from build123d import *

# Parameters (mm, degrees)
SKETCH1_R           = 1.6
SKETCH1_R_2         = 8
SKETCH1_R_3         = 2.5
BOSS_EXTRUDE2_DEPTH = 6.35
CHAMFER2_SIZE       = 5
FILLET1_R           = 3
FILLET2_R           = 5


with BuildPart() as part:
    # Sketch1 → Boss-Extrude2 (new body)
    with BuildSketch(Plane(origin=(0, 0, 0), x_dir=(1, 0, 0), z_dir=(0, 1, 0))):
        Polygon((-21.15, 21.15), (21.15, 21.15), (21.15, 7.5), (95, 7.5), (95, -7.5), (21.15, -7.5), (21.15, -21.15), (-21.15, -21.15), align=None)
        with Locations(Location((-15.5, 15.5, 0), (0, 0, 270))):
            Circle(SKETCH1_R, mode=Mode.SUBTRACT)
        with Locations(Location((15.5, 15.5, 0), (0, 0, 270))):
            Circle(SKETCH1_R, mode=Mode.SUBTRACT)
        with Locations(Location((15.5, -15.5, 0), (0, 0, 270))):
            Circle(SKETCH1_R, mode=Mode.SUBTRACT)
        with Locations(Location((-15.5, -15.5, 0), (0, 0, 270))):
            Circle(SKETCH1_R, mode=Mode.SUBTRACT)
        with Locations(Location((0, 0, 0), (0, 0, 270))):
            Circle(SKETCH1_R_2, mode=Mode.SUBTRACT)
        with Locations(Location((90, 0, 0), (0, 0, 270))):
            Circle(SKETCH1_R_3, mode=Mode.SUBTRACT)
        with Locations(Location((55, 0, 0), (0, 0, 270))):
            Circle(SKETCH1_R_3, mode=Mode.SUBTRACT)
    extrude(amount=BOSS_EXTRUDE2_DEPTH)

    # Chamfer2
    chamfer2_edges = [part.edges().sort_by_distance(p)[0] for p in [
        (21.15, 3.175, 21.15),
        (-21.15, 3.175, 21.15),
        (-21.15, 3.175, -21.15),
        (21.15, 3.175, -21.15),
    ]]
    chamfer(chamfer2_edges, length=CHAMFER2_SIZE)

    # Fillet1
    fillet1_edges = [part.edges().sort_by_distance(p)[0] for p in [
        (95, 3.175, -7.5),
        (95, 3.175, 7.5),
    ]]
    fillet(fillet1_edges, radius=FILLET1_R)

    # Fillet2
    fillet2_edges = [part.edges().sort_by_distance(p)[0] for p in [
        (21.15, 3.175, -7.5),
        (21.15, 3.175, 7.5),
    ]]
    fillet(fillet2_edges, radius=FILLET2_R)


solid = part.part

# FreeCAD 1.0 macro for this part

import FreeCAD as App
import Part
import Sketcher

V = App.Vector


def edges_at(feature, points):
    """Names of the edges that pass closest to the given points."""
    edges = feature.Shape.Edges
    near = lambda p: min(range(len(edges)), key=lambda i: edges[i].distToShape(Part.Vertex(*p))[0])
    return sorted({f"Edge{near(p) + 1}" for p in points})


def add_polygon(sketch, points):
    """Adds a closed chain of lines whose ends are joined by coincident constraints."""
    first, n = sketch.GeometryCount, len(points)
    for a, b in zip(points, points[1:] + points[:1]):
        sketch.addGeometry(Part.LineSegment(App.Vector(*a, 0), App.Vector(*b, 0)), False)
    for i in range(n):
        sketch.addConstraint(Sketcher.Constraint("Coincident", first + i, 2, first + (i + 1) % n, 1))

doc = App.newDocument("Part")
params = doc.addObject("Spreadsheet::Sheet", "Params")
for row, (alias, value) in enumerate([
    ("sketch1_diameter", "5 mm"),
    ("sketch1_diameter2", "16 mm"),
    ("sketch1_diameter3", "3.2 mm"),
    ("sketch1_height", "15 mm"),
    ("sketch1_width", "42.3 mm"),
    ("pad1_length", "6.35 mm"),
    ("chamfer_size", "5 mm"),
    ("fillet_radius", "3 mm"),
    ("fillet2_radius", "5 mm"),
], start=1):
    params.set(f"A{row}", alias)
    params.set(f"B{row}", "=" + value)
    params.setAlias(f"B{row}", alias)

body = doc.addObject("PartDesign::Body", "Body")

# Sketch on XZ plane
sketch1 = body.newObject("Sketcher::SketchObject", "Sketch")
sketch1.AttachmentSupport = (doc.getObject("XZ_Plane"), [""])
sketch1.MapMode = "FlatFace"
add_polygon(sketch1, [(21.1, -21.1), (-21.1, -21.1), (-21.1, 21.1), (21.1, 21.1), (21.1, 7.5), (95, 7.5), (95, -7.5), (21.1, -7.5)])  # lines 0-7
sketch1.addGeometry(Part.Circle(V(15.5, 15.5, 0), V(0, 0, 1), 1.6), False)  # 8
sketch1.addGeometry(Part.Circle(V(-15.5, 15.5, 0), V(0, 0, 1), 1.6), False)  # 9
sketch1.addGeometry(Part.Circle(V(90, 0, 0), V(0, 0, 1), 2.5), False)  # 10
sketch1.addGeometry(Part.Circle(V(55, 0, 0), V(0, 0, 1), 2.5), False)  # 11
sketch1.addGeometry(Part.Circle(V(0, 0, 0), V(0, 0, 1), 8), False)  # 12
sketch1.addGeometry(Part.Circle(V(15.5, -15.5, 0), V(0, 0, 1), 1.6), False)  # 13
sketch1.addGeometry(Part.Circle(V(-15.5, -15.5, 0), V(0, 0, 1), 1.6), False)  # 14
sketch1.addConstraint(Sketcher.Constraint("Horizontal", 0))
sketch1.addConstraint(Sketcher.Constraint("Vertical", 1))
sketch1.addConstraint(Sketcher.Constraint("Horizontal", 2))
sketch1.addConstraint(Sketcher.Constraint("Vertical", 3))
sketch1.addConstraint(Sketcher.Constraint("Horizontal", 4))
sketch1.addConstraint(Sketcher.Constraint("Vertical", 5))
sketch1.addConstraint(Sketcher.Constraint("Horizontal", 6))
sketch1.addConstraint(Sketcher.Constraint("Vertical", 7))
sketch1.addConstraint(Sketcher.Constraint("Coincident", 12, 3, -1, 1))
sketch1.addConstraint(Sketcher.Constraint("Equal", 8, 9))
sketch1.addConstraint(Sketcher.Constraint("Equal", 10, 11))
sketch1.addConstraint(Sketcher.Constraint("Equal", 9, 13))
sketch1.addConstraint(Sketcher.Constraint("Equal", 13, 14))
sketch1.addConstraint(Sketcher.Constraint("Symmetric", 9, 3, 13, 3, -1, 1))
sketch1.addConstraint(Sketcher.Constraint("Symmetric", 8, 3, 14, 3, -1, 1))
sketch1.addConstraint(Sketcher.Constraint("Symmetric", 0, 2, 2, 2, -1, 1))
sketch1.addConstraint(Sketcher.Constraint("Symmetric", 8, 3, 9, 3, -2))
sketch1.addConstraint(Sketcher.Constraint("Symmetric", 3, 2, 6, 2, -1))
sketch1.addConstraint(Sketcher.Constraint("PointOnObject", 10, 3, -1))
sketch1.addConstraint(Sketcher.Constraint("PointOnObject", 11, 3, -1))
sketch1.addConstraint(Sketcher.Constraint("Equal", 2, 1))
sketch1.addConstraint(Sketcher.Constraint("Diameter", 10, 5.0))
sketch1.addConstraint(Sketcher.Constraint("Diameter", 12, 16.0))
sketch1.addConstraint(Sketcher.Constraint("Diameter", 8, 3.2))
sketch1.addConstraint(Sketcher.Constraint("DistanceY", 5, 2, 5, 1, 15.0))
sketch1.addConstraint(Sketcher.Constraint("DistanceX", 0, 2, 0, 1, 42.3))
sketch1.addConstraint(Sketcher.Constraint("DistanceX", -1, 1, 10, 3, 90.0))
sketch1.addConstraint(Sketcher.Constraint("DistanceX", -1, 1, 11, 3, 55.0))
sketch1.addConstraint(Sketcher.Constraint("DistanceX", -1, 1, 4, 2, 95.0))
sketch1.addConstraint(Sketcher.Constraint("DistanceX", 9, 3, 8, 3, 31.0))
sketch1.addConstraint(Sketcher.Constraint("DistanceY", 13, 3, 8, 3, 31.0))
sketch1.setExpression("Constraints[29]", "Params.sketch1_diameter")
sketch1.setExpression("Constraints[30]", "Params.sketch1_diameter2")
sketch1.setExpression("Constraints[31]", "Params.sketch1_diameter3")
sketch1.setExpression("Constraints[32]", "Params.sketch1_height")
sketch1.setExpression("Constraints[33]", "Params.sketch1_width")
pad1 = body.newObject("PartDesign::Pad", "Pad")
pad1.Profile = sketch1
pad1.setExpression("Length", "Params.pad1_length")
pad1.Reversed = True
doc.recompute()

chamfer = body.newObject("PartDesign::Chamfer", "Chamfer")
chamfer.Base = (pad1, edges_at(pad1, [
    (21.15, 3.175, 21.15),
    (-21.15, 3.175, 21.15),
    (-21.15, 3.175, -21.15),
    (21.15, 3.175, -21.15),
]))
chamfer.setExpression("Size", "Params.chamfer_size")
doc.recompute()

fillet = body.newObject("PartDesign::Fillet", "Fillet")
fillet.Base = (chamfer, edges_at(chamfer, [(95, 3.175, -7.5), (95, 3.175, 7.5)]))
fillet.setExpression("Radius", "Params.fillet_radius")
doc.recompute()

fillet2 = body.newObject("PartDesign::Fillet", "Fillet001")
fillet2.Base = (fillet, edges_at(fillet, [(21.15, 3.175, -7.5), (21.15, 3.175, 7.5)]))
fillet2.setExpression("Radius", "Params.fillet2_radius")

doc.recompute()
